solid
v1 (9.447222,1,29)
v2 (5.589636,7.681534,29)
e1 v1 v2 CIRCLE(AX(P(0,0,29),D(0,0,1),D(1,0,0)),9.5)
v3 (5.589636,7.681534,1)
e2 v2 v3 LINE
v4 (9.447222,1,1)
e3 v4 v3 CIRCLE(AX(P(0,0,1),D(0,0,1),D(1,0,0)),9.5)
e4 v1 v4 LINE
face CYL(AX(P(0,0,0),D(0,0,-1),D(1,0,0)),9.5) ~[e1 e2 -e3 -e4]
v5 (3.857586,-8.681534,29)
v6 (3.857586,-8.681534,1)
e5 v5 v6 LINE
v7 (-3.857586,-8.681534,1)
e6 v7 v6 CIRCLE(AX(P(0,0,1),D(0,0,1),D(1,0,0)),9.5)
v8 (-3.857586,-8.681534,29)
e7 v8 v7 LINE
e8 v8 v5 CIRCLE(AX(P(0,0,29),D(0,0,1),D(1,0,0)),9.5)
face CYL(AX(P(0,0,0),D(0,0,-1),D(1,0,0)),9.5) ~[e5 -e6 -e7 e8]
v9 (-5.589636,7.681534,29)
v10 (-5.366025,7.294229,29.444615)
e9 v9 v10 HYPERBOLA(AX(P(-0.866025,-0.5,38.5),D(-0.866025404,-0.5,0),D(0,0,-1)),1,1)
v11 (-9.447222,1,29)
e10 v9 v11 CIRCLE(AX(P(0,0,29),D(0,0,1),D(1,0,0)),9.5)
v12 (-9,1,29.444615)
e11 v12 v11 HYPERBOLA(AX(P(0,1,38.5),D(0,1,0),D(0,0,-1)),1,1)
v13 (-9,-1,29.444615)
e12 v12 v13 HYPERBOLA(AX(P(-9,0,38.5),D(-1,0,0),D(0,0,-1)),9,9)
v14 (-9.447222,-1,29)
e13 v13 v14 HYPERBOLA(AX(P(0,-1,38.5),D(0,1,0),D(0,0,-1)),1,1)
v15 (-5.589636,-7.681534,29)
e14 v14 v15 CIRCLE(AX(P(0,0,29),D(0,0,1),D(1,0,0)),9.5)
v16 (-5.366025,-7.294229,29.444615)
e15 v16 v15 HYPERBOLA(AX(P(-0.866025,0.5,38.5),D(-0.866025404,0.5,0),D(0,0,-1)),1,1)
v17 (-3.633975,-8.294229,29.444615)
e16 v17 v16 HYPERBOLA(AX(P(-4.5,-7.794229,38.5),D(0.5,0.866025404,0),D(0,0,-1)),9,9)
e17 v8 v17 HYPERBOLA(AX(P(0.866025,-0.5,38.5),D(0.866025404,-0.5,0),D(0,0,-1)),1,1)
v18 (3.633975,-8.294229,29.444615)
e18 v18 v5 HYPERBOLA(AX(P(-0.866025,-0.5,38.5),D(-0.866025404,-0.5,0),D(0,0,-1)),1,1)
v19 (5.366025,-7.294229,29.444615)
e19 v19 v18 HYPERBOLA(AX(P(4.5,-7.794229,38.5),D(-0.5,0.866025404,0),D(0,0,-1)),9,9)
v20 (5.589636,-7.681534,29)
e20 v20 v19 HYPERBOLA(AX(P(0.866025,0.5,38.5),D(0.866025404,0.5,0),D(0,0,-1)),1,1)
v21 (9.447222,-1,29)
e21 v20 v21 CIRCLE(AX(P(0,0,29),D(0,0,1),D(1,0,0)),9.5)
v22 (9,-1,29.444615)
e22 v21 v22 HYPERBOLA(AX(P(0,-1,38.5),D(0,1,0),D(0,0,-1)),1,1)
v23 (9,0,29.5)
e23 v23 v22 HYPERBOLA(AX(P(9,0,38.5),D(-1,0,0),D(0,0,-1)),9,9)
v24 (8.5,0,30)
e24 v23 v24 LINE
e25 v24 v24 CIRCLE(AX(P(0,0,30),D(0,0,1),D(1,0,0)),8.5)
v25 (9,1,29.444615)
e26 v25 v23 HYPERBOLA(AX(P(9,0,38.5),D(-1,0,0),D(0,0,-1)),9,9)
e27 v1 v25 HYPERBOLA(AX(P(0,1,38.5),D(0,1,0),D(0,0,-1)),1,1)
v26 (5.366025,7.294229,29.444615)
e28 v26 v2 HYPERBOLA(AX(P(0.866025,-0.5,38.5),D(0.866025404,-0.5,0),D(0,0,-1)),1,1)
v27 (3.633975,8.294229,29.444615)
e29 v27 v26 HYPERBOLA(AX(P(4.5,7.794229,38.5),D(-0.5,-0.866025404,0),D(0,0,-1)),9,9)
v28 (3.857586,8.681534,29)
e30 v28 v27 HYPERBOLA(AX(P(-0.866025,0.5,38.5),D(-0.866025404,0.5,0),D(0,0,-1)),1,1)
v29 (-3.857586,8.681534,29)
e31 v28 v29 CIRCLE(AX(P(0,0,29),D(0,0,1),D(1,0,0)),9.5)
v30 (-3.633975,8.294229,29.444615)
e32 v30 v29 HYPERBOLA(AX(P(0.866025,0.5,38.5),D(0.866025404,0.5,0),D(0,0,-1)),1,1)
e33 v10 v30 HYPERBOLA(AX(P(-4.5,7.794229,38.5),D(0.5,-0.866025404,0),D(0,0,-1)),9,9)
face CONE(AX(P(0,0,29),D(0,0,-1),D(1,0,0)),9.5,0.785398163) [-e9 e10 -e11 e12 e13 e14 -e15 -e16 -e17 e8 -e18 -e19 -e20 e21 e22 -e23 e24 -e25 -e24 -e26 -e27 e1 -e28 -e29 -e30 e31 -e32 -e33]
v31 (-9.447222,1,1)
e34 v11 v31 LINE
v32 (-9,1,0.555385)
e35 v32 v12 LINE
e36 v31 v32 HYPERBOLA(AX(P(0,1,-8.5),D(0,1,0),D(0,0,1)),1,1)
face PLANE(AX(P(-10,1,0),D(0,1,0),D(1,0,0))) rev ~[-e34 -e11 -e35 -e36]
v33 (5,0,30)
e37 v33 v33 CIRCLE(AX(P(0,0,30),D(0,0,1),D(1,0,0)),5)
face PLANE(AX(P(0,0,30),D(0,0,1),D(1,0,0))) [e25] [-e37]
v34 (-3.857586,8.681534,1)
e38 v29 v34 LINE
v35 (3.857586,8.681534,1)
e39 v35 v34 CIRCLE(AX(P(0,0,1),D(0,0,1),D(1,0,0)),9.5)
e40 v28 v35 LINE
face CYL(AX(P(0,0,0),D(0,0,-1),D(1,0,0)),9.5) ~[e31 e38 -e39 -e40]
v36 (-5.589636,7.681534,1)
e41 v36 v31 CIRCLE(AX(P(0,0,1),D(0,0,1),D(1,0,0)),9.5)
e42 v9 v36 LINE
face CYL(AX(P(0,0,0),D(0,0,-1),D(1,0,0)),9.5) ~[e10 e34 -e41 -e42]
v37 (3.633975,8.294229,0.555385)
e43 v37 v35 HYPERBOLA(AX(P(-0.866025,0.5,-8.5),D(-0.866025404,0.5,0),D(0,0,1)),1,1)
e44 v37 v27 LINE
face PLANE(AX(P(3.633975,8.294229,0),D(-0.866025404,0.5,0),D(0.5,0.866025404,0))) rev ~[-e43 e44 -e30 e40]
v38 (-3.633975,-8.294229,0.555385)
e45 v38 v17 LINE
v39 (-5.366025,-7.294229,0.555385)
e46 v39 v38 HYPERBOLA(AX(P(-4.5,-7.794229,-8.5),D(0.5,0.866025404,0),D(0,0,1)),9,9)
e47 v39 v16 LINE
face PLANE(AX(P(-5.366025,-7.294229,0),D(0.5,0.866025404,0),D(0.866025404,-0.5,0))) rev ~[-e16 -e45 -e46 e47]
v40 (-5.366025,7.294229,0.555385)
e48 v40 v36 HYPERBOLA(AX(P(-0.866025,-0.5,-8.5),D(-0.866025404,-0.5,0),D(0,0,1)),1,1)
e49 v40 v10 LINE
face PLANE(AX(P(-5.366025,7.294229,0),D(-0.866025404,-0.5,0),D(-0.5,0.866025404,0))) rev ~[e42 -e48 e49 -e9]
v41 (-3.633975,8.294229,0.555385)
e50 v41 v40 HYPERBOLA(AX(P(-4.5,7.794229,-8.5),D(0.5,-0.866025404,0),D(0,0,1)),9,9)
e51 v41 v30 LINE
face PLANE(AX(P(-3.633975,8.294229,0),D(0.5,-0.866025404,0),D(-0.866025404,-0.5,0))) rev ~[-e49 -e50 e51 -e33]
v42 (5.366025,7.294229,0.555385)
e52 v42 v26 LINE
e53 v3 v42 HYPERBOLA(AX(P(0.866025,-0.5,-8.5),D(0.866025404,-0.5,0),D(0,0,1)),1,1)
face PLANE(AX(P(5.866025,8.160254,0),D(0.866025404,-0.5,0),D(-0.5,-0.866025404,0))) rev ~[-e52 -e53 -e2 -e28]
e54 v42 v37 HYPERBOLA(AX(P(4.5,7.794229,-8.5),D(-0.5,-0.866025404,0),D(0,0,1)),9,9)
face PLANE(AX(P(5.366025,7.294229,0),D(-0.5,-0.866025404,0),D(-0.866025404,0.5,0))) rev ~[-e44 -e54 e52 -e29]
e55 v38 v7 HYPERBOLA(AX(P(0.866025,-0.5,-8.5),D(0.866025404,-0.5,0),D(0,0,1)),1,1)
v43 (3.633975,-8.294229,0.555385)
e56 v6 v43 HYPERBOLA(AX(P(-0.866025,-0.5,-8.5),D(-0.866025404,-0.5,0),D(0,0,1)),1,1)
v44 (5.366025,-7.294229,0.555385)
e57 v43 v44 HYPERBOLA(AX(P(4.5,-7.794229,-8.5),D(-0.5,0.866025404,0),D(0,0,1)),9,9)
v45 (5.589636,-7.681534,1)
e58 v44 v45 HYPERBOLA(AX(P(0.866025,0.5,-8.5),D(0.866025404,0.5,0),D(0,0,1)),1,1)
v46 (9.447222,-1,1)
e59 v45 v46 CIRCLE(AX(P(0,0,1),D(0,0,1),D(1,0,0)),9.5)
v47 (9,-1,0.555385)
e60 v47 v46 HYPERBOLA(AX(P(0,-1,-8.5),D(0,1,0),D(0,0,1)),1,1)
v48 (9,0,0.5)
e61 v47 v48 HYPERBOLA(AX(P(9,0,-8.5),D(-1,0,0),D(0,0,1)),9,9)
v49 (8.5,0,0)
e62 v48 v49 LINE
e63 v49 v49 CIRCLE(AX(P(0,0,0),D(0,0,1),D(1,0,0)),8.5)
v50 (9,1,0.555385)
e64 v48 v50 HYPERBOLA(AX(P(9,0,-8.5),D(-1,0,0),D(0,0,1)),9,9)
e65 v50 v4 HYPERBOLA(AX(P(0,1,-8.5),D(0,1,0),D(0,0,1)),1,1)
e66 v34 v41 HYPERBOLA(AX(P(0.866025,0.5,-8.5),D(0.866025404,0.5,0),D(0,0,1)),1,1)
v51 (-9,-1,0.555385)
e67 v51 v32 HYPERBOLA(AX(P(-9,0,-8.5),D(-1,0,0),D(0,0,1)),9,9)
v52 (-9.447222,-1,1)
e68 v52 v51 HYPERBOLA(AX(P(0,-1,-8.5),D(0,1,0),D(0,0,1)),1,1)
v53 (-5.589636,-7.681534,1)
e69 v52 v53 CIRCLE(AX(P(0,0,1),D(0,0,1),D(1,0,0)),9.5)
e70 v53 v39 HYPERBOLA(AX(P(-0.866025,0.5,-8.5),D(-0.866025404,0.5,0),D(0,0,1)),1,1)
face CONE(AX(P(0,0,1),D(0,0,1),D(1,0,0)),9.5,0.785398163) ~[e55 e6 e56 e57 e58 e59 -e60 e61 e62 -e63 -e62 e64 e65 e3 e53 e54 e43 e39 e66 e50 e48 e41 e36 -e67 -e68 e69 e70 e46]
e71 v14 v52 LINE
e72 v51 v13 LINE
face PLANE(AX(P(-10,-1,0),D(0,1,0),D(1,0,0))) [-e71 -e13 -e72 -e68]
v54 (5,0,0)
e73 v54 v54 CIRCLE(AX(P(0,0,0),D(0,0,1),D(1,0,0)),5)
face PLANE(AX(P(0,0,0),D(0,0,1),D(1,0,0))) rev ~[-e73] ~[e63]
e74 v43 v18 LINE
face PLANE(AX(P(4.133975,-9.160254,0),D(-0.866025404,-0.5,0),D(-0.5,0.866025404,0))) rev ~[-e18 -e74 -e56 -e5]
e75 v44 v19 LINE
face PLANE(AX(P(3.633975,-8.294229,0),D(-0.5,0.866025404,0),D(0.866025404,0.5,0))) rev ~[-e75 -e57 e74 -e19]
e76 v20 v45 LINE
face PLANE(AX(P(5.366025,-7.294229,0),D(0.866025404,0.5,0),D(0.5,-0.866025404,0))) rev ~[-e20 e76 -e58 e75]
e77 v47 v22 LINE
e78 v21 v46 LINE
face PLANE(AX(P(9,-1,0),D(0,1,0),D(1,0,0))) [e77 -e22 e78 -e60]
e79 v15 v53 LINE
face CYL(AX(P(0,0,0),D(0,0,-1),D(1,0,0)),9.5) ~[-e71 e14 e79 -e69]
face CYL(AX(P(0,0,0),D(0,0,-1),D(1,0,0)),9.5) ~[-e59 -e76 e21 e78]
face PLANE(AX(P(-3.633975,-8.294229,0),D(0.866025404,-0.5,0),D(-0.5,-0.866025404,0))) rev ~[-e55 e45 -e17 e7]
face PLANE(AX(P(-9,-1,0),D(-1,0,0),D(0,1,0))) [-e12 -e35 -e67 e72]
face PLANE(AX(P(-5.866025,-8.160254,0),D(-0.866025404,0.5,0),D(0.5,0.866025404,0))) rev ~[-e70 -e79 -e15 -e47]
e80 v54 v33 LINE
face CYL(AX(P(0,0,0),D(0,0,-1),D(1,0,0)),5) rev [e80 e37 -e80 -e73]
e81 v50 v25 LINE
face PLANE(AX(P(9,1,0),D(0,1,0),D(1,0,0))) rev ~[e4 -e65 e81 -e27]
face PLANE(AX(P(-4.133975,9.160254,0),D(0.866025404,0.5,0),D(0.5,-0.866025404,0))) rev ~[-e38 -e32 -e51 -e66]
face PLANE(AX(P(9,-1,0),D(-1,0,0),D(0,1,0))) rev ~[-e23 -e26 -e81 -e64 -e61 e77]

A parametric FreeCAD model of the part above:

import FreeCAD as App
import Part
import Sketcher

V = App.Vector
Q = App.Units.Quantity


def edges_at(feature, points):
    """Names of the edges that pass closest to the given points."""
    edges = feature.Shape.Edges
    near = lambda p: min(range(len(edges)), key=lambda i: edges[i].distToShape(Part.Vertex(*p))[0])
    return sorted({f"Edge{near(p) + 1}" for p in points})


def add_polygon(sketch, points):
    """Adds a closed chain of lines whose ends are joined by coincident constraints."""
    first, n = sketch.GeometryCount, len(points)
    for a, b in zip(points, points[1:] + points[:1]):
        sketch.addGeometry(Part.LineSegment(App.Vector(*a, 0), App.Vector(*b, 0)), False)
    for i in range(n):
        sketch.addConstraint(Sketcher.Constraint("Coincident", first + i, 2, first + (i + 1) % n, 1))

doc = App.newDocument("Part")
body = doc.addObject("PartDesign::Body", "Body")

# Sketch on XY plane
sketch1 = body.newObject("Sketcher::SketchObject", "Sketch")
sketch1.AttachmentSupport = (doc.getObject("XY_Plane"), [""])
sketch1.MapMode = "FlatFace"
sketch1.addGeometry([
    Part.Circle(V(0, 0, 0), V(0, 0, 1), 10),
    Part.Circle(V(0, 0, 0), V(0, 0, 1), 5),
], False)
sketch1.addConstraint([
    Sketcher.Constraint("Coincident", 0, 3, -1, 1),
    Sketcher.Constraint("Coincident", 1, 3, -1, 1),
    Sketcher.Constraint("Diameter", 0, 19.0),
    Sketcher.Constraint("Diameter", 1, 10.0),
])
pad1 = body.newObject("PartDesign::Pad", "Pad")
pad1.Profile = sketch1
pad1.Length = 30
doc.recompute()

chamfer = body.newObject("PartDesign::Chamfer", "Chamfer")
chamfer.Base = (pad1, edges_at(pad1, [(-9.5, 0, 0), (-9.5, 0, 30)]))
chamfer.Size = 1

# Sketch on XY plane
sketch2 = body.newObject("Sketcher::SketchObject", "Sketch001")
sketch2.AttachmentSupport = (doc.getObject("XY_Plane"), [""])
sketch2.MapMode = "FlatFace"
add_polygon(sketch2, [(-5.4, 7.3), (-3.6, 8.3), (-4.1, 9.2), (-5.9, 8.2)])  # lines 0-3
add_polygon(sketch2, [(-10, 1), (-10, -1), (-9, -1), (-9, 1)])  # lines 4-7
add_polygon(sketch2, [(3.6, 8.3), (5.4, 7.3), (5.9, 8.2), (4.1, 9.2)])  # lines 8-11
add_polygon(sketch2, [(9, 1), (9, -1), (10, -1), (10, 1)])  # lines 12-15
add_polygon(sketch2, [(5.4, -7.3), (3.6, -8.3), (4.1, -9.2), (5.9, -8.2)])  # lines 16-19
add_polygon(sketch2, [(-3.6, -8.3), (-5.4, -7.3), (-5.9, -8.2), (-4.1, -9.2)])  # lines 20-23
sketch2.addConstraint([
    Sketcher.Constraint("Vertical", 4),
    Sketcher.Constraint("Horizontal", 5),
    Sketcher.Constraint("Vertical", 6),
    Sketcher.Constraint("Horizontal", 7),
    Sketcher.Constraint("Vertical", 12),
    Sketcher.Constraint("Horizontal", 13),
    Sketcher.Constraint("Vertical", 14),
    Sketcher.Constraint("Horizontal", 15),
    Sketcher.Constraint("Symmetric", 6, 2, 12, 2, -1, 1),
    Sketcher.Constraint("Symmetric", 4, 2, 14, 2, -1, 1),
    Sketcher.Constraint("Symmetric", 0, 2, 16, 2, -1, 1),
    Sketcher.Constraint("Symmetric", 1, 2, 17, 2, -1, 1),
    Sketcher.Constraint("Symmetric", 2, 2, 18, 2, -1, 1),
    Sketcher.Constraint("Symmetric", 3, 2, 19, 2, -1, 1),
    Sketcher.Constraint("Symmetric", 8, 2, 20, 2, -1, 1),
    Sketcher.Constraint("Symmetric", 9, 2, 21, 2, -1, 1),
    Sketcher.Constraint("Symmetric", 10, 2, 22, 2, -1, 1),
    Sketcher.Constraint("Symmetric", 11, 2, 23, 2, -1, 1),
    Sketcher.Constraint("Symmetric", 3, 2, 8, 2, -2),
    Sketcher.Constraint("Symmetric", 2, 2, 9, 2, -2),
    Sketcher.Constraint("Symmetric", 1, 2, 10, 2, -2),
    Sketcher.Constraint("Symmetric", 0, 2, 11, 2, -2),
    Sketcher.Constraint("Perpendicular", 0, 1),
    Sketcher.Constraint("Perpendicular", 1, 2),
    Sketcher.Constraint("Perpendicular", 2, 3),
    Sketcher.Constraint("Horizontal", 5, 2, 12, 2),
    Sketcher.Constraint("DistanceX", 5, 1, 5, 2, 1.0),
    Sketcher.Constraint("DistanceY", 4, 2, 4, 1, 2.0),
    Sketcher.Constraint("Angle", 0, Q("30 deg")),
    Sketcher.Constraint("Distance", 0, 2.0),
    Sketcher.Constraint("Distance", 1, 1.0),
    Sketcher.Constraint("DistanceX", 4, 2, -1, 1, 10.0),
    Sketcher.Constraint("DistanceX", 0, 2, 8, 2, 9.0),
    Sketcher.Constraint("DistanceY", -1, 1, 0, 2, 8.294229),
])
pocket1 = body.newObject("PartDesign::Pocket", "Pocket")
pocket1.Profile = sketch2
pocket1.Type = "ThroughAll"
pocket1.Reversed = True

doc.recompute()
